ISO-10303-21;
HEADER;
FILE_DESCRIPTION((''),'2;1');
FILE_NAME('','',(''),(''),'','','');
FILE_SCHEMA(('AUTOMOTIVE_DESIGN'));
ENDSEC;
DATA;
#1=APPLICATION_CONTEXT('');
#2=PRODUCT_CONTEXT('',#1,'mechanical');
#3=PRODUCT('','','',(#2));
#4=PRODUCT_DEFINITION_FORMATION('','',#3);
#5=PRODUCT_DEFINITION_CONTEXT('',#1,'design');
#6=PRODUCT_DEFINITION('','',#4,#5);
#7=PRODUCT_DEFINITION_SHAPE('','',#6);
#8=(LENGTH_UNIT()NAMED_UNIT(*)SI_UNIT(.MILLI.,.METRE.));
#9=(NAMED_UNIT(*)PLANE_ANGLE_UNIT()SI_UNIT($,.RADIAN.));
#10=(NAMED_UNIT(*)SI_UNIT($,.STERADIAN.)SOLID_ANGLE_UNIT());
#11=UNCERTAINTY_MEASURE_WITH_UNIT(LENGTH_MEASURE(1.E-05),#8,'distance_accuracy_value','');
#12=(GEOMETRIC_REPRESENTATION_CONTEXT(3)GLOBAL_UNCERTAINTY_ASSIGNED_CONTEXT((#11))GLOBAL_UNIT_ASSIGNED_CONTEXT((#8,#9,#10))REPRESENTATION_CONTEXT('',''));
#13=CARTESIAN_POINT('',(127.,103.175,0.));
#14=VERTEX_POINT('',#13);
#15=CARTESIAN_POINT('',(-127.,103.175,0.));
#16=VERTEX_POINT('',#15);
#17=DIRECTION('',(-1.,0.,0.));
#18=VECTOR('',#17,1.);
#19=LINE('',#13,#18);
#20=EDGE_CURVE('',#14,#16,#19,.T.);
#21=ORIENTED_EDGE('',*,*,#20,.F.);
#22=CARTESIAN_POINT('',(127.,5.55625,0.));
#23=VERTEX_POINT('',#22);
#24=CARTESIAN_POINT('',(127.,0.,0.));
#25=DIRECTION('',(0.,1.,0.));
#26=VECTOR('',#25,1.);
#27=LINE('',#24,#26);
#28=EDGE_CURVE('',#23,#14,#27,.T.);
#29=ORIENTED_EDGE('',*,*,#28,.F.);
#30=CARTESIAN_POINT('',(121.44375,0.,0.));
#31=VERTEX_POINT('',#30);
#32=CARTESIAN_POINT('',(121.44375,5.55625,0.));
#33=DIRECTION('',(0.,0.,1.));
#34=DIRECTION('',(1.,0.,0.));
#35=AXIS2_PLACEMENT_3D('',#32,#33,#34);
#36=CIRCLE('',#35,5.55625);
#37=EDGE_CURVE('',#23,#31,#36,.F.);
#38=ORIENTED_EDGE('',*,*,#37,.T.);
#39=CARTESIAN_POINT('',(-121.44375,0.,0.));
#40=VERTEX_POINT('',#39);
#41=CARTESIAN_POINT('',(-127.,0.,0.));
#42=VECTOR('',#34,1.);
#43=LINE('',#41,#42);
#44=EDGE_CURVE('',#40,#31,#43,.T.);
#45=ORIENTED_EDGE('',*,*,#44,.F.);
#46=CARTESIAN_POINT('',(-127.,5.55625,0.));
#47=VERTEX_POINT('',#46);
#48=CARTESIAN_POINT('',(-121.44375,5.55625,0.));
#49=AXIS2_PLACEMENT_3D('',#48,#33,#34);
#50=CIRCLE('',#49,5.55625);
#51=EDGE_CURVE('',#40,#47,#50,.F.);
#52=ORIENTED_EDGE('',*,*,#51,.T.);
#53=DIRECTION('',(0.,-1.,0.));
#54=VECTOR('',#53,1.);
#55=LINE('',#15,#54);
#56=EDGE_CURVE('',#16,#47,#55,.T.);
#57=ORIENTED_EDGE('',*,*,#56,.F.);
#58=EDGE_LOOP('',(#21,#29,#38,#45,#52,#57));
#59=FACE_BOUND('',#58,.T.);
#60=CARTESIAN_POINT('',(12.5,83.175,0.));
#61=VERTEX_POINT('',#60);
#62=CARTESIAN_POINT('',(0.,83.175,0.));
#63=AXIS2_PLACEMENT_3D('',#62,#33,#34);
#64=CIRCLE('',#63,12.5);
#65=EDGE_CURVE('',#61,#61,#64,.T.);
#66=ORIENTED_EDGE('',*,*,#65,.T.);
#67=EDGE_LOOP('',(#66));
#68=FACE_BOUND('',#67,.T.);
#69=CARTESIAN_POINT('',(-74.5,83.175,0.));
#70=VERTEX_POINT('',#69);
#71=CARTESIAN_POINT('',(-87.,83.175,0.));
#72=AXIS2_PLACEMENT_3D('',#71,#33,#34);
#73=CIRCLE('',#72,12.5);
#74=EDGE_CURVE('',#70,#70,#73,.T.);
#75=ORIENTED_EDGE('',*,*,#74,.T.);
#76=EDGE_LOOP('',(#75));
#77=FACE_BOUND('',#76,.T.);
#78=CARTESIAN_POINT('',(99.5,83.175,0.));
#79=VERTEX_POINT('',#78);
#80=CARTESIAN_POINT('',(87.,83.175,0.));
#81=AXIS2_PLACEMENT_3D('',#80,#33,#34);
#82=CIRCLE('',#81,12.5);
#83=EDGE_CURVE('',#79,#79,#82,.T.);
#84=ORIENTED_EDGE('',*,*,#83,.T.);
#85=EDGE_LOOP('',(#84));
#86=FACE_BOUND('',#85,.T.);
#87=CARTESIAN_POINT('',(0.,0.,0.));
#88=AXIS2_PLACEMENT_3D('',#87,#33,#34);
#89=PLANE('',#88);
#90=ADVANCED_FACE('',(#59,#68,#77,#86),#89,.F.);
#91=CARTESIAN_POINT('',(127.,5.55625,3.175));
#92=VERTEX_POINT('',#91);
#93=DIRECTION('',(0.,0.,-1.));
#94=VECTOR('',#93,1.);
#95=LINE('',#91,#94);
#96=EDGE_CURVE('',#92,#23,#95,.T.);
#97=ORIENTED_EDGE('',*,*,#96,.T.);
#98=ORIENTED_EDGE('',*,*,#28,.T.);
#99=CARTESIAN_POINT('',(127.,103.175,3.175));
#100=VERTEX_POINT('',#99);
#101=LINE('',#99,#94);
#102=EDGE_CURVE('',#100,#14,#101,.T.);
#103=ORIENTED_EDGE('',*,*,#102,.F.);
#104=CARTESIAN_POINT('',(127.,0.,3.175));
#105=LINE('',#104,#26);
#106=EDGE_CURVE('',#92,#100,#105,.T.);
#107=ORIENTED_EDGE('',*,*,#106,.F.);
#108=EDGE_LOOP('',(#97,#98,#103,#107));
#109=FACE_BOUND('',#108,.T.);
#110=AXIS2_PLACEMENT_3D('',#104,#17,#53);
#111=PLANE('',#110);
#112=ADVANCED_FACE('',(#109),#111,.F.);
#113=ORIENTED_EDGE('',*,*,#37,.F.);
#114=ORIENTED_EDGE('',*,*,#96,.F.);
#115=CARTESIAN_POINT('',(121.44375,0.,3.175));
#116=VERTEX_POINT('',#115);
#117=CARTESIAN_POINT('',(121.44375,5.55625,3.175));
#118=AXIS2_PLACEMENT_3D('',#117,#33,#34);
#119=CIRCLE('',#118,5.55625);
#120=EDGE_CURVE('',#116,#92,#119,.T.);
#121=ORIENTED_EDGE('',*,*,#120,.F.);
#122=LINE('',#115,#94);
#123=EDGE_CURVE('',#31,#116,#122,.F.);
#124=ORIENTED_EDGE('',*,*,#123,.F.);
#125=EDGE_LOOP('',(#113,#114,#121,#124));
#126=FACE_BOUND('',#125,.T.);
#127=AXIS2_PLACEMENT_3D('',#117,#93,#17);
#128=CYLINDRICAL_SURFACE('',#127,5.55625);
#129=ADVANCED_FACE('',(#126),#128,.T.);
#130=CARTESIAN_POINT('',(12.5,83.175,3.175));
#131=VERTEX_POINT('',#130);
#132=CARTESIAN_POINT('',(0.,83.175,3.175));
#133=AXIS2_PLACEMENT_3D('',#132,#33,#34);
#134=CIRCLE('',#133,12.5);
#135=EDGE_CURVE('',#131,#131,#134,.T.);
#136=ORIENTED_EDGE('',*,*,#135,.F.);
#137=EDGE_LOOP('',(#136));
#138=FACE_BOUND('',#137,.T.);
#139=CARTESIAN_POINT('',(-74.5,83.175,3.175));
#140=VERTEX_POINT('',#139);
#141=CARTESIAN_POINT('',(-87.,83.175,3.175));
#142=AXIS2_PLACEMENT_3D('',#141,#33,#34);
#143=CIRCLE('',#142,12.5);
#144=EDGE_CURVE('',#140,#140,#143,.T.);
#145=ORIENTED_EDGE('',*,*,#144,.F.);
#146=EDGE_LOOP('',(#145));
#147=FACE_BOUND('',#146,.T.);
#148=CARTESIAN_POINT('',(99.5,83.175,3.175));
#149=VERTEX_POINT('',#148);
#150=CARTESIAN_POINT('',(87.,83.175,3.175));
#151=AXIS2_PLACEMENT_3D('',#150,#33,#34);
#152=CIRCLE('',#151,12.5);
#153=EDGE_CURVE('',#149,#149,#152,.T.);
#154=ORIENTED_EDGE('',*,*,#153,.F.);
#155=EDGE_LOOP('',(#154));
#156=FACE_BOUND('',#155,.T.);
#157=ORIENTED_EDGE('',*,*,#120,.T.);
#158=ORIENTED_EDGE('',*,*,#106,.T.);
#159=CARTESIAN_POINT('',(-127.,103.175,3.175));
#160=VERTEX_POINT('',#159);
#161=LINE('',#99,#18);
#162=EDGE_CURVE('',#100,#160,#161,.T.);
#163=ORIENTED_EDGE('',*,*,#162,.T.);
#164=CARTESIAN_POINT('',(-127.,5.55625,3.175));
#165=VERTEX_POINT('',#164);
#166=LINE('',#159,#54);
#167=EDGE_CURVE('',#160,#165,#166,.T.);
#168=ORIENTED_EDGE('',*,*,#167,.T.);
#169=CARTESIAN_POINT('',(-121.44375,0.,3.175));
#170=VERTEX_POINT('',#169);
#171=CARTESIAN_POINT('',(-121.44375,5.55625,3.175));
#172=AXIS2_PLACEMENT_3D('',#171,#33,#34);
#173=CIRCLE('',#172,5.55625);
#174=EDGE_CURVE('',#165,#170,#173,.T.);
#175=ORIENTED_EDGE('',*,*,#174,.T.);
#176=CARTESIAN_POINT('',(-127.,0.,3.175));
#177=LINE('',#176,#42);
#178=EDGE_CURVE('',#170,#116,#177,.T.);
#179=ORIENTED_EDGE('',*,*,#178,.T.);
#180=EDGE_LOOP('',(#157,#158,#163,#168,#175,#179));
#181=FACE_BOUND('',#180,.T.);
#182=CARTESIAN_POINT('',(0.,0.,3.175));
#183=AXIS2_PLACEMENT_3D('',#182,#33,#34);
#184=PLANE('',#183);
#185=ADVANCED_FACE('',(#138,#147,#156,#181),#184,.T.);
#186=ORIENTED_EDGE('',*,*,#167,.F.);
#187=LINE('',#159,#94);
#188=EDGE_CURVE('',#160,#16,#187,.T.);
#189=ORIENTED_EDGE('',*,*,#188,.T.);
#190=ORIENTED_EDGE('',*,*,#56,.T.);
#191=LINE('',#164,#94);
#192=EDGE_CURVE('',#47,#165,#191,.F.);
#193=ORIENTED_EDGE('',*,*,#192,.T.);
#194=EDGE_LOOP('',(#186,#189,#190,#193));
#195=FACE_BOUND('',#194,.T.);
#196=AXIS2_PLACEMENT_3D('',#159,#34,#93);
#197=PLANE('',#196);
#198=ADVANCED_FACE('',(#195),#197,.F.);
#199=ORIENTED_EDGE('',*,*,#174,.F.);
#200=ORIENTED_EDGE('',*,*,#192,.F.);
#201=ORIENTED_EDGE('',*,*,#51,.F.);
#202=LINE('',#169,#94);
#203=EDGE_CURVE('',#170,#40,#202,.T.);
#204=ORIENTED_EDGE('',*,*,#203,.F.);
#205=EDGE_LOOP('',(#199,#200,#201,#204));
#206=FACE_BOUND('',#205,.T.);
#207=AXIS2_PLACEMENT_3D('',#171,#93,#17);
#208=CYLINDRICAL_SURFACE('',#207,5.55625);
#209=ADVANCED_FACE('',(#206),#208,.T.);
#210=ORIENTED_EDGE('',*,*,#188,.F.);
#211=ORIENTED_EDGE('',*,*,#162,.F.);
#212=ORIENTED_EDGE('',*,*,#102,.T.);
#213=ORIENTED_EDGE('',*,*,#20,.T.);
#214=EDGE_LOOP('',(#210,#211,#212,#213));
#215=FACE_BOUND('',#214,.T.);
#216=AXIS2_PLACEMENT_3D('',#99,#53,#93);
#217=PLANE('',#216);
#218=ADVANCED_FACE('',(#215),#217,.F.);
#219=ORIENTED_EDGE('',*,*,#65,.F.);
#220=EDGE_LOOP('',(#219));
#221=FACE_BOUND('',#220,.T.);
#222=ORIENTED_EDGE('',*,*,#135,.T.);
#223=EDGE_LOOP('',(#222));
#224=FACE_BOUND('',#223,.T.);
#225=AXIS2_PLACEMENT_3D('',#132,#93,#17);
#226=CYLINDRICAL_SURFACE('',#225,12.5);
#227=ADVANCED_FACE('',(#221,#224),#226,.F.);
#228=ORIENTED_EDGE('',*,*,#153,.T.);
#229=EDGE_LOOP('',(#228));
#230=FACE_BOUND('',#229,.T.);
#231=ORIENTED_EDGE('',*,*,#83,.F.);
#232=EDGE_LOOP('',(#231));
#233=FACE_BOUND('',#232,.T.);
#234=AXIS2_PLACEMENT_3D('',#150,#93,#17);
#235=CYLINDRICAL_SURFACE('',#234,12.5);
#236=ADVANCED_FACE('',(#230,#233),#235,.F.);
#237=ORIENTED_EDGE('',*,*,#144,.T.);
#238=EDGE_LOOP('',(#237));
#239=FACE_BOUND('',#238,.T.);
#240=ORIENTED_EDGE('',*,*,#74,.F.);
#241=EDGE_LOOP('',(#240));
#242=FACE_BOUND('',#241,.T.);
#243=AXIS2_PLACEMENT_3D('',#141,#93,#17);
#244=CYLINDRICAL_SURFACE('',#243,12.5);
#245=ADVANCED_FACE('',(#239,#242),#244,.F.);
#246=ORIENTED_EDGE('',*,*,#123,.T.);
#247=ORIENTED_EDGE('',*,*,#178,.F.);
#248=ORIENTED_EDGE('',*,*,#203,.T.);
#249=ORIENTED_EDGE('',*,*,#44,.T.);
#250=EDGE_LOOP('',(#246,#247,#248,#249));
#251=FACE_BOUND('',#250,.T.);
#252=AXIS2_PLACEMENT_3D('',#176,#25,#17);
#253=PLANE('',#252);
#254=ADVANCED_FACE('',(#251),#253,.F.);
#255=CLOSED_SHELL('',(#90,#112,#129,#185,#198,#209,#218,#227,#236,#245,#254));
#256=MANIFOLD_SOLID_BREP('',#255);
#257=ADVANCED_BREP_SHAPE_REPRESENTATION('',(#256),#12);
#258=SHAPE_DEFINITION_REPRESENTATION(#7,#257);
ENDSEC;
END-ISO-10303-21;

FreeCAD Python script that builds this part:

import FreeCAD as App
import Part
import Sketcher
Q = App.Units.Quantity


def edges_at(feature, points):
    """Names of the edges that pass closest to the given points."""
    edges = feature.Shape.Edges
    near = lambda p: min(range(len(edges)), key=lambda i: edges[i].distToShape(Part.Vertex(*p))[0])
    return sorted({f"Edge{near(p) + 1}" for p in points})

doc = App.newDocument("Part")
params = doc.addObject("Spreadsheet::Sheet", "Params")
for row, (alias, value) in enumerate([
    ("sketch1_width", "10 in"),
    ("pad1_length", "0.125 in"),
    ("fillet_radius", "0.21875 in"),
], start=1):
    params.set(f"A{row}", alias)
    params.set(f"B{row}", "=" + value)
    params.setAlias(f"B{row}", alias)

body = doc.addObject("PartDesign::Body", "Body")

sketch1 = doc.addObject("Sketcher::SketchObject", "Sketch")
body.addObject(sketch1)
sketch1.AttachmentSupport = (doc.XY_Plane, [""])
sketch1.MapMode = "FlatFace"
sketch1.addGeometry(Part.LineSegment(App.Vector(-127, 103, 0), App.Vector(-127, 0, 0)), False)
sketch1.addGeometry(Part.LineSegment(App.Vector(-127, 0, 0), App.Vector(127, 0, 0)), False)
sketch1.addGeometry(Part.LineSegment(App.Vector(127, 0, 0), App.Vector(127, 103, 0)), False)
sketch1.addGeometry(Part.LineSegment(App.Vector(127, 103, 0), App.Vector(-127, 103, 0)), False)
sketch1.addGeometry(Part.Circle(App.Vector(-87, 83, 0), App.Vector(0, 0, 1), 12), False)
sketch1.addGeometry(Part.Circle(App.Vector(0, 83, 0), App.Vector(0, 0, 1), 12), False)
sketch1.addGeometry(Part.Circle(App.Vector(87, 83, 0), App.Vector(0, 0, 1), 12), False)
sketch1.addConstraint(Sketcher.Constraint("Coincident", 0, 2, 1, 1))
sketch1.addConstraint(Sketcher.Constraint("Coincident", 1, 2, 2, 1))
sketch1.addConstraint(Sketcher.Constraint("Coincident", 2, 2, 3, 1))
sketch1.addConstraint(Sketcher.Constraint("Coincident", 3, 2, 0, 1))
sketch1.addConstraint(Sketcher.Constraint("Vertical", 0))
sketch1.addConstraint(Sketcher.Constraint("Horizontal", 1))
sketch1.addConstraint(Sketcher.Constraint("Vertical", 2))
sketch1.addConstraint(Sketcher.Constraint("Horizontal", 3))
sketch1.addConstraint(Sketcher.Constraint("Equal", 4, 5))
sketch1.addConstraint(Sketcher.Constraint("Equal", 5, 6))
sketch1.addConstraint(Sketcher.Constraint("Symmetric", 0, 2, 1, 2, -1, 1))
sketch1.addConstraint(Sketcher.Constraint("Symmetric", 4, 3, 6, 3, -2))
sketch1.addConstraint(Sketcher.Constraint("PointOnObject", 5, 3, -2))
sketch1.addConstraint(Sketcher.Constraint("Horizontal", 4, 3, 5, 3))
sketch1.addConstraint(Sketcher.Constraint("DistanceX", 1, 1, 1, 2, Q("10 in")))
sketch1.addConstraint(Sketcher.Constraint("Diameter", 4, 25.0))
sketch1.addConstraint(Sketcher.Constraint("DistanceY", 0, 2, 0, 1, 103.175))
sketch1.addConstraint(Sketcher.Constraint("DistanceX", 4, 3, -1, 1, 87.0))
sketch1.addConstraint(Sketcher.Constraint("DistanceY", -1, 1, 4, 3, 83.175))
sketch1.setExpression("Constraints[14]", "Params.sketch1_width")
pad1 = doc.addObject("PartDesign::Pad", "Pad")
body.addObject(pad1)
pad1.Profile = sketch1
pad1.setExpression("Length", "Params.pad1_length")
doc.recompute()

fillet = doc.addObject("PartDesign::Fillet", "Fillet")
body.addObject(fillet)
fillet.Base = (pad1, edges_at(pad1, [(127, 0, 1.587), (-127, 0, 1.587)]))
fillet.setExpression("Radius", "Params.fillet_radius")

doc.recompute()
